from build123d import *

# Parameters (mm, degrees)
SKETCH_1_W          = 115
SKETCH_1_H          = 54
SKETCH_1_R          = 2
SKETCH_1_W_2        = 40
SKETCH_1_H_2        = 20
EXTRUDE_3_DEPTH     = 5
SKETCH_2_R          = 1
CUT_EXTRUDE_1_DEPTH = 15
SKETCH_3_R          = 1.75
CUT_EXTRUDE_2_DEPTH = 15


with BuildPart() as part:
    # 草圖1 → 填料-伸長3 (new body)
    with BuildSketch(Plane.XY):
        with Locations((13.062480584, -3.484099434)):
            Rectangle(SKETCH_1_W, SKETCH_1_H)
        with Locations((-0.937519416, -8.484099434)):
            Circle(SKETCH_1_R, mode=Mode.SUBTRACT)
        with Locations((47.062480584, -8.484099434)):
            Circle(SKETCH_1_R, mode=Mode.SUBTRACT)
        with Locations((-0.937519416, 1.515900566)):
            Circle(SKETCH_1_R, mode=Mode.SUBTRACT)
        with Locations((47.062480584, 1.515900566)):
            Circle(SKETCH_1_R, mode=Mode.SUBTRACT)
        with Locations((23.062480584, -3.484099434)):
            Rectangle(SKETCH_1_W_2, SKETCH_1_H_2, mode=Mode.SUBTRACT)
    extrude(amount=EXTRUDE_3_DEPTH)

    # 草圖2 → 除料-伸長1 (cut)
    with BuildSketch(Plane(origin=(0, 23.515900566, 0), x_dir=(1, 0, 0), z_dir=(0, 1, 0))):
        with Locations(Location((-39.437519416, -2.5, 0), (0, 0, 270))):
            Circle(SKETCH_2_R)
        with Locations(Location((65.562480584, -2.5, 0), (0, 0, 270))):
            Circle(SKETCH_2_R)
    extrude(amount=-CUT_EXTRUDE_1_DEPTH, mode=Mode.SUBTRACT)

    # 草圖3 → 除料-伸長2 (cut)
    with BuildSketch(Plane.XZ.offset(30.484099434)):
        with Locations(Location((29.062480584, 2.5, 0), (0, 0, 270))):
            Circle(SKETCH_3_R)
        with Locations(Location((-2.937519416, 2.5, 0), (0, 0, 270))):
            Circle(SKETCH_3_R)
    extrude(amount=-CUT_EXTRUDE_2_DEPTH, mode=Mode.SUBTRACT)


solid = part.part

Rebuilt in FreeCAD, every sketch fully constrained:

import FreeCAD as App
import Part
import Sketcher
from FreeCAD import Vector
Q = App.Units.Quantity

doc = App.newDocument("Part")
body = doc.addObject("PartDesign::Body", "Body")

sketch1 = doc.addObject("Sketcher::SketchObject", "Sketch")
body.addObject(sketch1)
sketch1.AttachmentSupport = (doc.XY_Plane, [""])
sketch1.MapMode = "FlatFace"
sketch1.addGeometry([
    Part.LineSegment(Vector(-44.4, 23.5, 0), Vector(-44.4, -30.5, 0)),
    Part.LineSegment(Vector(-44.4, -30.5, 0), Vector(70.6, -30.5, 0)),
    Part.LineSegment(Vector(70.6, -30.5, 0), Vector(70.6, 23.5, 0)),
    Part.LineSegment(Vector(70.6, 23.5, 0), Vector(-44.4, 23.5, 0)),
    Part.Circle(Vector(-0.9, -8.5, 0), Vector(0, 0, 1), 2),
    Part.Circle(Vector(47.1, -8.5, 0), Vector(0, 0, 1), 2),
    Part.Circle(Vector(-0.9, 1.5, 0), Vector(0, 0, 1), 2),
    Part.LineSegment(Vector(43.1, -13.5, 0), Vector(3.1, -13.5, 0)),
    Part.LineSegment(Vector(3.1, -13.5, 0), Vector(3.1, 6.5, 0)),
    Part.LineSegment(Vector(3.1, 6.5, 0), Vector(43.1, 6.5, 0)),
    Part.LineSegment(Vector(43.1, 6.5, 0), Vector(43.1, -13.5, 0)),
    Part.Circle(Vector(47.1, 1.5, 0), Vector(0, 0, 1), 2),
], False)
sketch1.addConstraint([
    Sketcher.Constraint("Coincident", 0, 2, 1, 1),
    Sketcher.Constraint("Coincident", 1, 2, 2, 1),
    Sketcher.Constraint("Coincident", 2, 2, 3, 1),
    Sketcher.Constraint("Coincident", 3, 2, 0, 1),
    Sketcher.Constraint("Coincident", 7, 2, 8, 1),
    Sketcher.Constraint("Coincident", 8, 2, 9, 1),
    Sketcher.Constraint("Coincident", 9, 2, 10, 1),
    Sketcher.Constraint("Coincident", 10, 2, 7, 1),
    Sketcher.Constraint("Vertical", 0),
    Sketcher.Constraint("Horizontal", 1),
    Sketcher.Constraint("Vertical", 2),
    Sketcher.Constraint("Horizontal", 3),
    Sketcher.Constraint("Horizontal", 7),
    Sketcher.Constraint("Vertical", 8),
    Sketcher.Constraint("Horizontal", 9),
    Sketcher.Constraint("Vertical", 10),
    Sketcher.Constraint("Equal", 4, 5),
    Sketcher.Constraint("Equal", 5, 6),
    Sketcher.Constraint("Equal", 6, 11),
    Sketcher.Constraint("Horizontal", 4, 3, 5, 3),
    Sketcher.Constraint("Horizontal", 6, 3, 11, 3),
    Sketcher.Constraint("Vertical", 4, 3, 6, 3),
    Sketcher.Constraint("Vertical", 5, 3, 11, 3),
    Sketcher.Constraint("Diameter", 4, Q("4 mm")),
    Sketcher.Constraint("DistanceX", 1, 1, 1, 2, Q("115 mm")),
    Sketcher.Constraint("DistanceX", 7, 2, 7, 1, Q("40 mm")),
    Sketcher.Constraint("DistanceY", 0, 2, 0, 1, Q("54 mm")),
    Sketcher.Constraint("DistanceY", 8, 1, 8, 2, Q("20 mm")),
    Sketcher.Constraint("DistanceX", 4, 3, 5, 3, Q("48 mm")),
    Sketcher.Constraint("DistanceY", 4, 3, 6, 3, Q("10 mm")),
    Sketcher.Constraint("DistanceY", 0, 2, 4, 3, Q("22 mm")),
    Sketcher.Constraint("DistanceX", 4, 3, 7, 2, Q("4 mm")),
    Sketcher.Constraint("DistanceY", 7, 2, 4, 3, Q("5 mm")),
    Sketcher.Constraint("DistanceX", 0, 2, 4, 3, Q("43.5 mm")),
    Sketcher.Constraint("DistanceY", 4, 3, -1, 1, Q("8.484099 mm")),
    Sketcher.Constraint("DistanceX", 4, 3, -1, 1, Q("0.937519 mm")),
])
pad1 = doc.addObject("PartDesign::Pad", "Pad")
body.addObject(pad1)
pad1.Profile = sketch1
pad1.Length = 5

sketch2 = doc.addObject("Sketcher::SketchObject", "Sketch001")
body.addObject(sketch2)
sketch2.AttachmentSupport = (doc.XZ_Plane, [""])
sketch2.MapMode = "FlatFace"
sketch2.AttachmentOffset = App.Placement(Vector(0, 0, -23.515901), App.Rotation())
sketch2.addGeometry([
    Part.Circle(Vector(-39.4, 2.5, 0), Vector(0, 0, 1), 1),
    Part.Circle(Vector(65.6, 2.5, 0), Vector(0, 0, 1), 1),
], False)
sketch2.addConstraint([
    Sketcher.Constraint("Equal", 0, 1),
    Sketcher.Constraint("Horizontal", 0, 3, 1, 3),
    Sketcher.Constraint("Diameter", 0, Q("2 mm")),
    Sketcher.Constraint("DistanceX", 0, 3, 1, 3, Q("105 mm")),
    Sketcher.Constraint("DistanceY", -1, 1, 0, 3, Q("2.5 mm")),
    Sketcher.Constraint("DistanceX", 0, 3, -1, 1, Q("39.437519 mm")),
])
pocket1 = doc.addObject("PartDesign::Pocket", "Pocket")
body.addObject(pocket1)
pocket1.Profile = sketch2
pocket1.Length = 15
pocket1.Reversed = True

sketch3 = doc.addObject("Sketcher::SketchObject", "Sketch002")
body.addObject(sketch3)
sketch3.AttachmentSupport = (doc.XZ_Plane, [""])
sketch3.MapMode = "FlatFace"
sketch3.AttachmentOffset = App.Placement(Vector(0, 0, 30.484099), App.Rotation())
sketch3.addGeometry([
    Part.Circle(Vector(29.1, 2.5, 0), Vector(0, 0, 1), 1.8),
    Part.Circle(Vector(-2.9, 2.5, 0), Vector(0, 0, 1), 1.8),
], False)
sketch3.addConstraint([
    Sketcher.Constraint("Equal", 0, 1),
    Sketcher.Constraint("Horizontal", 0, 3, 1, 3),
    Sketcher.Constraint("Diameter", 0, Q("3.5 mm")),
    Sketcher.Constraint("DistanceX", 1, 3, 0, 3, Q("32 mm")),
    Sketcher.Constraint("DistanceY", -1, 1, 0, 3, Q("2.5 mm")),
    Sketcher.Constraint("DistanceX", -1, 1, 0, 3, Q("29.062481 mm")),
])
pocket2 = doc.addObject("PartDesign::Pocket", "Pocket001")
body.addObject(pocket2)
pocket2.Profile = sketch3
pocket2.Length = 15

doc.recompute()
